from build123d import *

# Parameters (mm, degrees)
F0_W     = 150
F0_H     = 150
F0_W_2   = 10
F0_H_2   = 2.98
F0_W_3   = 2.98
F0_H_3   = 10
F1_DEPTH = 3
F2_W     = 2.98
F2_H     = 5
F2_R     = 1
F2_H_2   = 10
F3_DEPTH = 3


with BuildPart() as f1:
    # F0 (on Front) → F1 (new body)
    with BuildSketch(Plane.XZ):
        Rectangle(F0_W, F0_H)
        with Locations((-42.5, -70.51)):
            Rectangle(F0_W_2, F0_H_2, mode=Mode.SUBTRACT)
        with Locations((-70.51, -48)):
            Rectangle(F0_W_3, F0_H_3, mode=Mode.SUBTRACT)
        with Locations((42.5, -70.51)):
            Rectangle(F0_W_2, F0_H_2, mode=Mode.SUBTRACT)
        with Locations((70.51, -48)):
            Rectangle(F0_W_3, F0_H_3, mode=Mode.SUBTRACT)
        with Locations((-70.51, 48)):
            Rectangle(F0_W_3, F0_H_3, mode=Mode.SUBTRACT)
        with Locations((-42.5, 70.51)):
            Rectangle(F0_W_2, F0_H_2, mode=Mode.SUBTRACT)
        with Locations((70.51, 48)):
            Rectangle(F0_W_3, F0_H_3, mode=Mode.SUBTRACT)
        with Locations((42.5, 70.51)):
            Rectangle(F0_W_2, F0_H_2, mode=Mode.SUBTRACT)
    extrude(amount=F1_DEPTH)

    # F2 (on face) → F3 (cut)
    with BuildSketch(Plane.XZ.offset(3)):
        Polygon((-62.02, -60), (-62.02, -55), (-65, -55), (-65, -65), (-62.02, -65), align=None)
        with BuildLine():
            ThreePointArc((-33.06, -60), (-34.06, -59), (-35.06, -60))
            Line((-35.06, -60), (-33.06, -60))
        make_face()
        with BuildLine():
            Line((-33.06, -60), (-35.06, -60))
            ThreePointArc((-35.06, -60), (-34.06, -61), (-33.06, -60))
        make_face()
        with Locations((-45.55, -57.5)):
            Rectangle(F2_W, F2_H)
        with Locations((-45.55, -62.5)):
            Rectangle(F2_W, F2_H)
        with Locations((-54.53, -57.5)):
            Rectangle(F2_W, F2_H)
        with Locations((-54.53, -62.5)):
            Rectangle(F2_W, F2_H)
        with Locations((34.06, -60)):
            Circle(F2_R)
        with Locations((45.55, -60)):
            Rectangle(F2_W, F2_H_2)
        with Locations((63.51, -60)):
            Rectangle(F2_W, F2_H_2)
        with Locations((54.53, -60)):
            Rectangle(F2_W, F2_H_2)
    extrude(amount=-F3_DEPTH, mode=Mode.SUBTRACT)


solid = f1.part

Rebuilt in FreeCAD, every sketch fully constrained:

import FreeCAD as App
import Part
import Sketcher

V = App.Vector


def add_polygon(sketch, points):
    """Adds a closed chain of lines whose ends are joined by coincident constraints."""
    first, n = sketch.GeometryCount, len(points)
    for a, b in zip(points, points[1:] + points[:1]):
        sketch.addGeometry(Part.LineSegment(App.Vector(*a, 0), App.Vector(*b, 0)), False)
    for i in range(n):
        sketch.addConstraint(Sketcher.Constraint("Coincident", first + i, 2, first + (i + 1) % n, 1))

doc = App.newDocument("Part")
body = doc.addObject("PartDesign::Body", "Body")

sketch1 = doc.addObject("Sketcher::SketchObject", "Sketch")
body.addObject(sketch1)
sketch1.AttachmentSupport = (doc.XZ_Plane, [""])
sketch1.MapMode = "FlatFace"
add_polygon(sketch1, [(-75, 75), (-75, -75), (75, -75), (75, 75)])
add_polygon(sketch1, [(-37.5, -72), (-47.5, -72), (-47.5, -69.02), (-37.5, -69.02)])
add_polygon(sketch1, [(-69.02, -53), (-72, -53), (-72, -43), (-69.02, -43)])
add_polygon(sketch1, [(47.5, -72), (37.5, -72), (37.5, -69.02), (47.5, -69.02)])
add_polygon(sketch1, [(72, -53), (69.02, -53), (69.02, -43), (72, -43)])
add_polygon(sketch1, [(-69.02, 43), (-72, 43), (-72, 53), (-69.02, 53)])
add_polygon(sketch1, [(-37.5, 69.02), (-47.5, 69.02), (-47.5, 72), (-37.5, 72)])
add_polygon(sketch1, [(72, 43), (69.02, 43), (69.02, 53), (72, 53)])
add_polygon(sketch1, [(47.5, 69.02), (37.5, 69.02), (37.5, 72), (47.5, 72)])
sketch1.addConstraint([
    Sketcher.Constraint("Vertical", 0),
    Sketcher.Constraint("Horizontal", 1),
    Sketcher.Constraint("Vertical", 2),
    Sketcher.Constraint("Horizontal", 3),
    Sketcher.Constraint("Horizontal", 4),
    Sketcher.Constraint("Vertical", 5),
    Sketcher.Constraint("Horizontal", 6),
    Sketcher.Constraint("Vertical", 7),
    Sketcher.Constraint("Horizontal", 8),
    Sketcher.Constraint("Vertical", 9),
    Sketcher.Constraint("Horizontal", 10),
    Sketcher.Constraint("Vertical", 11),
    Sketcher.Constraint("Horizontal", 12),
    Sketcher.Constraint("Vertical", 13),
    Sketcher.Constraint("Horizontal", 14),
    Sketcher.Constraint("Vertical", 15),
    Sketcher.Constraint("Horizontal", 16),
    Sketcher.Constraint("Vertical", 17),
    Sketcher.Constraint("Horizontal", 18),
    Sketcher.Constraint("Vertical", 19),
    Sketcher.Constraint("Horizontal", 20),
    Sketcher.Constraint("Vertical", 21),
    Sketcher.Constraint("Horizontal", 22),
    Sketcher.Constraint("Vertical", 23),
    Sketcher.Constraint("Horizontal", 24),
    Sketcher.Constraint("Vertical", 25),
    Sketcher.Constraint("Horizontal", 26),
    Sketcher.Constraint("Vertical", 27),
    Sketcher.Constraint("Horizontal", 28),
    Sketcher.Constraint("Vertical", 29),
    Sketcher.Constraint("Horizontal", 30),
    Sketcher.Constraint("Vertical", 31),
    Sketcher.Constraint("Horizontal", 32),
    Sketcher.Constraint("Vertical", 33),
    Sketcher.Constraint("Horizontal", 34),
    Sketcher.Constraint("Vertical", 35),
    Sketcher.Constraint("Symmetric", 0, 2, 2, 2, -1, 1),
    Sketcher.Constraint("Symmetric", 18, 2, 20, 2, -1, 1),
    Sketcher.Constraint("Symmetric", 16, 2, 22, 2, -1, 1),
    Sketcher.Constraint("Symmetric", 14, 2, 24, 2, -1, 1),
    Sketcher.Constraint("Symmetric", 12, 2, 26, 2, -1, 1),
    Sketcher.Constraint("Symmetric", 10, 2, 28, 2, -1, 1),
    Sketcher.Constraint("Symmetric", 8, 2, 30, 2, -1, 1),
    Sketcher.Constraint("Symmetric", 6, 2, 32, 2, -1, 1),
    Sketcher.Constraint("Symmetric", 4, 2, 34, 2, -1, 1),
    Sketcher.Constraint("Symmetric", 7, 2, 12, 2, -2),
    Sketcher.Constraint("Symmetric", 5, 2, 14, 2, -2),
    Sketcher.Constraint("Symmetric", 11, 2, 16, 2, -2),
    Sketcher.Constraint("Symmetric", 9, 2, 18, 2, -2),
    Sketcher.Constraint("Equal", 3, 0),
    Sketcher.Constraint("Equal", 30, 5),
    Sketcher.Constraint("Equal", 34, 9),
    Sketcher.Constraint("DistanceX", 1, 1, 1, 2, 150.0),
    Sketcher.Constraint("DistanceX", 4, 2, 4, 1, 10.0),
    Sketcher.Constraint("DistanceY", 4, 2, -1, 1, 72.0),
    Sketcher.Constraint("DistanceX", 8, 2, -1, 1, 72.0),
    Sketcher.Constraint("DistanceY", 8, 2, -1, 1, 53.0),
    Sketcher.Constraint("DistanceX", 7, 2, 12, 2, 75.0),
    Sketcher.Constraint("DistanceX", 8, 2, 8, 1, 2.98),
])
pad1 = doc.addObject("PartDesign::Pad", "Pad")
body.addObject(pad1)
pad1.Profile = sketch1
pad1.Length = 3

sketch2 = doc.addObject("Sketcher::SketchObject", "Sketch001")
body.addObject(sketch2)
sketch2.AttachmentSupport = (doc.XZ_Plane, [""])
sketch2.MapMode = "FlatFace"
sketch2.AttachmentOffset = App.Placement(V(0, 0, 3), App.Rotation())
add_polygon(sketch2, [(-62.02, -55), (-65, -55), (-65, -65), (-62.02, -65)])
sketch2.addGeometry(Part.Circle(V(-34.06, -60, 0), V(0, 0, 1), 1), False)
add_polygon(sketch2, [(-47.04, -55), (-47.04, -65), (-44.06, -65), (-44.06, -55)])
add_polygon(sketch2, [(-56.02, -55), (-56.02, -65), (-53.04, -65), (-53.04, -55)])
sketch2.addGeometry(Part.Circle(V(34.06, -60, 0), V(0, 0, 1), 1), False)
add_polygon(sketch2, [(44.06, -55), (44.06, -65), (47.04, -65), (47.04, -55)])
add_polygon(sketch2, [(62.02, -55), (62.02, -65), (65, -65), (65, -55)])
add_polygon(sketch2, [(53.04, -55), (53.04, -65), (56.02, -65), (56.02, -55)])
sketch2.addConstraint([
    Sketcher.Constraint("Horizontal", 0),
    Sketcher.Constraint("Vertical", 1),
    Sketcher.Constraint("Horizontal", 2),
    Sketcher.Constraint("Vertical", 3),
    Sketcher.Constraint("Vertical", 5),
    Sketcher.Constraint("Horizontal", 6),
    Sketcher.Constraint("Vertical", 7),
    Sketcher.Constraint("Horizontal", 8),
    Sketcher.Constraint("Vertical", 9),
    Sketcher.Constraint("Horizontal", 10),
    Sketcher.Constraint("Vertical", 11),
    Sketcher.Constraint("Horizontal", 12),
    Sketcher.Constraint("Vertical", 14),
    Sketcher.Constraint("Horizontal", 15),
    Sketcher.Constraint("Vertical", 16),
    Sketcher.Constraint("Horizontal", 17),
    Sketcher.Constraint("Vertical", 18),
    Sketcher.Constraint("Horizontal", 19),
    Sketcher.Constraint("Vertical", 20),
    Sketcher.Constraint("Horizontal", 21),
    Sketcher.Constraint("Vertical", 22),
    Sketcher.Constraint("Horizontal", 23),
    Sketcher.Constraint("Vertical", 24),
    Sketcher.Constraint("Horizontal", 25),
    Sketcher.Constraint("Equal", 4, 13),
    Sketcher.Constraint("Symmetric", 4, 3, 13, 3, -2),
    Sketcher.Constraint("Symmetric", 6, 2, 14, 2, -2),
    Sketcher.Constraint("Symmetric", 8, 2, 16, 2, -2),
    Sketcher.Constraint("Symmetric", 2, 2, 18, 2, -2),
    Sketcher.Constraint("Symmetric", 0, 2, 20, 2, -2),
    Sketcher.Constraint("Symmetric", 10, 2, 22, 2, -2),
    Sketcher.Constraint("Symmetric", 12, 2, 24, 2, -2),
    Sketcher.Constraint("Horizontal", 2, 2, 5, 2),
    Sketcher.Constraint("Horizontal", 3, 2, 7, 2),
    Sketcher.Constraint("Horizontal", 6, 2, 9, 2),
    Sketcher.Constraint("Horizontal", 8, 2, 11, 2),
    Sketcher.Constraint("Equal", 2, 6),
    Sketcher.Constraint("Equal", 8, 10),
    Sketcher.Constraint("Diameter", 4, 2.0),
    Sketcher.Constraint("DistanceY", 1, 2, 1, 1, 10.0),
    Sketcher.Constraint("DistanceY", 4, 3, -1, 1, 60.0),
    Sketcher.Constraint("DistanceX", 0, 2, -1, 1, 65.0),
    Sketcher.Constraint("DistanceY", 0, 2, -1, 1, 55.0),
    Sketcher.Constraint("DistanceX", 6, 2, 4, 3, 10.0),
    Sketcher.Constraint("DistanceX", 2, 2, 9, 2, 6.0),
    Sketcher.Constraint("DistanceX", 10, 2, 5, 2, 6.0),
    Sketcher.Constraint("DistanceX", 0, 2, 0, 1, 2.98),
])
pocket1 = doc.addObject("PartDesign::Pocket", "Pocket")
body.addObject(pocket1)
pocket1.Profile = sketch2
pocket1.Length = 3

doc.recompute()
